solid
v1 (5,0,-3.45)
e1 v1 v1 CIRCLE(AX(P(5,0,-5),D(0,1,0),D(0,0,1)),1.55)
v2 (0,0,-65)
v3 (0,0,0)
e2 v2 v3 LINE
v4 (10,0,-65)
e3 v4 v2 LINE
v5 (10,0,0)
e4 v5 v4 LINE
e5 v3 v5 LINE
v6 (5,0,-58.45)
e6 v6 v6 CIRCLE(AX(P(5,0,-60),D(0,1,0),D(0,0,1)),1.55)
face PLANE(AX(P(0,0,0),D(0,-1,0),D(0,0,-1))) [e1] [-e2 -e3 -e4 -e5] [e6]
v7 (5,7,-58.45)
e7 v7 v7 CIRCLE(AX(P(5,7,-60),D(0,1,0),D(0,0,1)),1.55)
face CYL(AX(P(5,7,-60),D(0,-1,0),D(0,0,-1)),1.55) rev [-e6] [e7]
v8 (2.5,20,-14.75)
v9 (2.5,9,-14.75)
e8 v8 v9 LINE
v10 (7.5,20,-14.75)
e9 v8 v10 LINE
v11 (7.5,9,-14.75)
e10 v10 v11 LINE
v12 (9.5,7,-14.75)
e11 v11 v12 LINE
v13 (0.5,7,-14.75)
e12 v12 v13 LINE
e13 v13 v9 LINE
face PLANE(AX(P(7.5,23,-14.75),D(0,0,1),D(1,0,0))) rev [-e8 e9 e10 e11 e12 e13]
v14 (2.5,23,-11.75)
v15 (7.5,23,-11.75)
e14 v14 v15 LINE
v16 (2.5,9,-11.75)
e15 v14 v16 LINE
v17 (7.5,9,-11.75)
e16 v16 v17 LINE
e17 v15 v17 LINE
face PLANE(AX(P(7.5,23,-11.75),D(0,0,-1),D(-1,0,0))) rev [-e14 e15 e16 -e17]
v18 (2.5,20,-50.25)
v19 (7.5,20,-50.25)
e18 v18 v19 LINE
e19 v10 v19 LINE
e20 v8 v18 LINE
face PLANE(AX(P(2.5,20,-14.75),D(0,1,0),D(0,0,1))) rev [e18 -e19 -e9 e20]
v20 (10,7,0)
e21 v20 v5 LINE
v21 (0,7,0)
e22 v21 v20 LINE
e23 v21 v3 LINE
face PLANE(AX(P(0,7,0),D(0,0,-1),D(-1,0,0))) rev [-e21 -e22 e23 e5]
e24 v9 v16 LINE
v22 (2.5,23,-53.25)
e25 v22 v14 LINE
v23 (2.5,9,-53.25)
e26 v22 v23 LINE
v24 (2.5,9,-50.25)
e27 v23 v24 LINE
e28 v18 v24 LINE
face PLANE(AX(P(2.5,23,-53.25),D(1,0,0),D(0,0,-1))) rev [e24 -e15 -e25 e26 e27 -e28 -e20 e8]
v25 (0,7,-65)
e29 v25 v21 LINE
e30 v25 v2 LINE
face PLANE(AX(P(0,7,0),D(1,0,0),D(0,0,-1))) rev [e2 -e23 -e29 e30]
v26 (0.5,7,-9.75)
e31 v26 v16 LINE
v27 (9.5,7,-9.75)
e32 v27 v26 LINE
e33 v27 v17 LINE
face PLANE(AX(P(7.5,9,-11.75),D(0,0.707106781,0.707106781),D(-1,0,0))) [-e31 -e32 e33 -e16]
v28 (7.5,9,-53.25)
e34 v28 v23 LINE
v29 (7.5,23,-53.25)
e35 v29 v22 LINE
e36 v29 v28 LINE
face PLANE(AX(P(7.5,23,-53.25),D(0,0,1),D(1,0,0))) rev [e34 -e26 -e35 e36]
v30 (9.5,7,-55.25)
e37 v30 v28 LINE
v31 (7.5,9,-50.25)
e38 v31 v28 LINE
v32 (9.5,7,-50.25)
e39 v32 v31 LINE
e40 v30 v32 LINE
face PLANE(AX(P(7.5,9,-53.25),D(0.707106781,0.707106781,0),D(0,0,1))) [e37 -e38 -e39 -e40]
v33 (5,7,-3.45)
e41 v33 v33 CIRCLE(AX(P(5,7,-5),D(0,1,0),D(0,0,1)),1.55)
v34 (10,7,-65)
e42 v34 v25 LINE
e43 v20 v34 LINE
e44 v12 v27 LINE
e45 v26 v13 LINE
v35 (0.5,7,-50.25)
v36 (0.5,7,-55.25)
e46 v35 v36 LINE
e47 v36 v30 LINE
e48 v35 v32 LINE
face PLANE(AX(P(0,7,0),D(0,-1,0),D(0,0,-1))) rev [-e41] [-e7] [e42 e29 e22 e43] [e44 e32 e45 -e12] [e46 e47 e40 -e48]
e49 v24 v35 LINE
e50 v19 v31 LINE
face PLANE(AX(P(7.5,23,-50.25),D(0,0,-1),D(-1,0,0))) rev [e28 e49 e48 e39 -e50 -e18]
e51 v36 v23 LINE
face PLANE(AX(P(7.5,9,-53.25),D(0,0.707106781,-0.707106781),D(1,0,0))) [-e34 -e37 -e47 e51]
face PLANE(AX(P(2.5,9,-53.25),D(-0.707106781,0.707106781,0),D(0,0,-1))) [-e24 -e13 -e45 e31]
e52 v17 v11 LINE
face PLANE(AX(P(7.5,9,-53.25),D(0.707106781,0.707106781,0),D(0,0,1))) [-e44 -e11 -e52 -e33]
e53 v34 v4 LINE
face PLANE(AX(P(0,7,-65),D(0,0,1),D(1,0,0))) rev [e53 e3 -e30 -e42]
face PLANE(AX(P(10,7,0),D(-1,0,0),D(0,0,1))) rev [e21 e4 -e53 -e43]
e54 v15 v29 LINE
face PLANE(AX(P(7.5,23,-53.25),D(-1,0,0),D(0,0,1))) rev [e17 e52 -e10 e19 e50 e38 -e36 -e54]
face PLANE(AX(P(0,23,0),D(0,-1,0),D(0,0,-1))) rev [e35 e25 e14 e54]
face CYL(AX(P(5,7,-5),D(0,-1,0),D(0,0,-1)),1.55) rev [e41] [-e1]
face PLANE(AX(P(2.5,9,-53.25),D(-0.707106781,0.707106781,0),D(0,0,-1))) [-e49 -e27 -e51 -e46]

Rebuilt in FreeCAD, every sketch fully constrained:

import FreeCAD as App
import Part
import Sketcher

V = App.Vector


def edges_at(feature, points):
    """Names of the edges that pass closest to the given points."""
    edges = feature.Shape.Edges
    near = lambda p: min(range(len(edges)), key=lambda i: edges[i].distToShape(Part.Vertex(*p))[0])
    return sorted({f"Edge{near(p) + 1}" for p in points})


def add_polygon(sketch, points):
    """Adds a closed chain of lines whose ends are joined by coincident constraints."""
    first, n = sketch.GeometryCount, len(points)
    for a, b in zip(points, points[1:] + points[:1]):
        sketch.addGeometry(Part.LineSegment(App.Vector(*a, 0), App.Vector(*b, 0)), False)
    for i in range(n):
        sketch.addConstraint(Sketcher.Constraint("Coincident", first + i, 2, first + (i + 1) % n, 1))

doc = App.newDocument("Part")
body = doc.addObject("PartDesign::Body", "Body")

# Sketch on XZ plane
sketch1 = doc.addObject("Sketcher::SketchObject", "Sketch")
body.addObject(sketch1)
sketch1.AttachmentSupport = (doc.XZ_Plane, [""])
sketch1.MapMode = "FlatFace"
add_polygon(sketch1, [(0, -65), (0, 0), (10, 0), (10, -65)])  # lines 0-3
sketch1.addGeometry(Part.Circle(V(5, -5, 0), V(0, 0, 1), 1.6), False)  # 4
sketch1.addGeometry(Part.Circle(V(5, -60, 0), V(0, 0, 1), 1.6), False)  # 5
sketch1.addConstraint([
    Sketcher.Constraint("Vertical", 0),
    Sketcher.Constraint("Horizontal", 1),
    Sketcher.Constraint("Vertical", 2),
    Sketcher.Constraint("Horizontal", 3),
    Sketcher.Constraint("Coincident", 0, 2, -1, 1),
    Sketcher.Constraint("Equal", 4, 5),
    Sketcher.Constraint("Vertical", 4, 3, 5, 3),
    Sketcher.Constraint("Diameter", 4, 3.1),
    Sketcher.Constraint("DistanceX", 1, 1, 1, 2, 10.0),
    Sketcher.Constraint("DistanceY", 0, 1, 0, 2, 65.0),
    Sketcher.Constraint("DistanceX", -1, 1, 4, 3, 5.0),
    Sketcher.Constraint("DistanceY", 4, 3, -1, 1, 5.0),
    Sketcher.Constraint("DistanceY", 5, 3, -1, 1, 60.0),
])
pad1 = doc.addObject("PartDesign::Pad", "Pad")
body.addObject(pad1)
pad1.Profile = sketch1
pad1.Length = 7
pad1.Reversed = True

# Sketch on XZ plane
sketch2 = doc.addObject("Sketcher::SketchObject", "Sketch001")
body.addObject(sketch2)
sketch2.AttachmentSupport = (doc.XZ_Plane, [""])
sketch2.MapMode = "FlatFace"
sketch2.AttachmentOffset = App.Placement(V(0, 0, -7), App.Rotation())
add_polygon(sketch2, [(2.5, -53.2), (2.5, -50.2), (7.5, -50.2), (7.5, -53.2)])  # lines 0-3
add_polygon(sketch2, [(2.5, -14.8), (2.5, -11.8), (7.5, -11.8), (7.5, -14.8)])  # lines 4-7
sketch2.addConstraint([
    Sketcher.Constraint("Vertical", 0),
    Sketcher.Constraint("Horizontal", 1),
    Sketcher.Constraint("Vertical", 2),
    Sketcher.Constraint("Horizontal", 3),
    Sketcher.Constraint("Vertical", 4),
    Sketcher.Constraint("Horizontal", 5),
    Sketcher.Constraint("Vertical", 6),
    Sketcher.Constraint("Horizontal", 7),
    Sketcher.Constraint("Vertical", 3, 2, 4, 2),
    Sketcher.Constraint("Vertical", 2, 2, 5, 2),
    Sketcher.Constraint("Equal", 2, 4),
    Sketcher.Constraint("DistanceX", 1, 1, 1, 2, 5.0),
    Sketcher.Constraint("DistanceY", 0, 1, 0, 2, 3.0),
    Sketcher.Constraint("DistanceX", -1, 1, 0, 2, 2.5),
    Sketcher.Constraint("DistanceY", 0, 2, 4, 2, 38.5),
    Sketcher.Constraint("DistanceY", 0, 2, -1, 1, 50.25),
])
pad2 = doc.addObject("PartDesign::Pad", "Pad001")
body.addObject(pad2)
pad2.Profile = sketch2
pad2.Length = 16
pad2.Reversed = True

# Sketch on XY plane
sketch3 = doc.addObject("Sketcher::SketchObject", "Sketch002")
body.addObject(sketch3)
sketch3.AttachmentSupport = (doc.XY_Plane, [""])
sketch3.MapMode = "FlatFace"
sketch3.AttachmentOffset = App.Placement(V(0, 0, -50.25), App.Rotation())
add_polygon(sketch3, [(2.5, 23), (2.5, 20), (7.5, 20), (7.5, 23)])  # lines 0-3
sketch3.addConstraint([
    Sketcher.Constraint("Vertical", 0),
    Sketcher.Constraint("Horizontal", 1),
    Sketcher.Constraint("Vertical", 2),
    Sketcher.Constraint("Horizontal", 3),
    Sketcher.Constraint("DistanceX", 1, 1, 1, 2, 5.0),
    Sketcher.Constraint("DistanceY", 0, 2, 0, 1, 3.0),
    Sketcher.Constraint("DistanceY", -1, 1, 0, 2, 20.0),
    Sketcher.Constraint("DistanceX", -1, 1, 0, 2, 2.5),
])
pad3 = doc.addObject("PartDesign::Pad", "Pad002")
body.addObject(pad3)
pad3.Profile = sketch3
pad3.Length = 35.5
doc.recompute()

chamfer = doc.addObject("PartDesign::Chamfer", "Chamfer")
body.addObject(chamfer)
chamfer.Base = (pad3, edges_at(pad3, [
    (7.5, 7, -51.75),
    (5, 7, -53.25),
    (2.5, 7, -51.75),
    (7.5, 7, -13.25),
    (2.5, 7, -13.25),
    (5, 7, -11.75),
]))
chamfer.Size = 2

doc.recompute()
